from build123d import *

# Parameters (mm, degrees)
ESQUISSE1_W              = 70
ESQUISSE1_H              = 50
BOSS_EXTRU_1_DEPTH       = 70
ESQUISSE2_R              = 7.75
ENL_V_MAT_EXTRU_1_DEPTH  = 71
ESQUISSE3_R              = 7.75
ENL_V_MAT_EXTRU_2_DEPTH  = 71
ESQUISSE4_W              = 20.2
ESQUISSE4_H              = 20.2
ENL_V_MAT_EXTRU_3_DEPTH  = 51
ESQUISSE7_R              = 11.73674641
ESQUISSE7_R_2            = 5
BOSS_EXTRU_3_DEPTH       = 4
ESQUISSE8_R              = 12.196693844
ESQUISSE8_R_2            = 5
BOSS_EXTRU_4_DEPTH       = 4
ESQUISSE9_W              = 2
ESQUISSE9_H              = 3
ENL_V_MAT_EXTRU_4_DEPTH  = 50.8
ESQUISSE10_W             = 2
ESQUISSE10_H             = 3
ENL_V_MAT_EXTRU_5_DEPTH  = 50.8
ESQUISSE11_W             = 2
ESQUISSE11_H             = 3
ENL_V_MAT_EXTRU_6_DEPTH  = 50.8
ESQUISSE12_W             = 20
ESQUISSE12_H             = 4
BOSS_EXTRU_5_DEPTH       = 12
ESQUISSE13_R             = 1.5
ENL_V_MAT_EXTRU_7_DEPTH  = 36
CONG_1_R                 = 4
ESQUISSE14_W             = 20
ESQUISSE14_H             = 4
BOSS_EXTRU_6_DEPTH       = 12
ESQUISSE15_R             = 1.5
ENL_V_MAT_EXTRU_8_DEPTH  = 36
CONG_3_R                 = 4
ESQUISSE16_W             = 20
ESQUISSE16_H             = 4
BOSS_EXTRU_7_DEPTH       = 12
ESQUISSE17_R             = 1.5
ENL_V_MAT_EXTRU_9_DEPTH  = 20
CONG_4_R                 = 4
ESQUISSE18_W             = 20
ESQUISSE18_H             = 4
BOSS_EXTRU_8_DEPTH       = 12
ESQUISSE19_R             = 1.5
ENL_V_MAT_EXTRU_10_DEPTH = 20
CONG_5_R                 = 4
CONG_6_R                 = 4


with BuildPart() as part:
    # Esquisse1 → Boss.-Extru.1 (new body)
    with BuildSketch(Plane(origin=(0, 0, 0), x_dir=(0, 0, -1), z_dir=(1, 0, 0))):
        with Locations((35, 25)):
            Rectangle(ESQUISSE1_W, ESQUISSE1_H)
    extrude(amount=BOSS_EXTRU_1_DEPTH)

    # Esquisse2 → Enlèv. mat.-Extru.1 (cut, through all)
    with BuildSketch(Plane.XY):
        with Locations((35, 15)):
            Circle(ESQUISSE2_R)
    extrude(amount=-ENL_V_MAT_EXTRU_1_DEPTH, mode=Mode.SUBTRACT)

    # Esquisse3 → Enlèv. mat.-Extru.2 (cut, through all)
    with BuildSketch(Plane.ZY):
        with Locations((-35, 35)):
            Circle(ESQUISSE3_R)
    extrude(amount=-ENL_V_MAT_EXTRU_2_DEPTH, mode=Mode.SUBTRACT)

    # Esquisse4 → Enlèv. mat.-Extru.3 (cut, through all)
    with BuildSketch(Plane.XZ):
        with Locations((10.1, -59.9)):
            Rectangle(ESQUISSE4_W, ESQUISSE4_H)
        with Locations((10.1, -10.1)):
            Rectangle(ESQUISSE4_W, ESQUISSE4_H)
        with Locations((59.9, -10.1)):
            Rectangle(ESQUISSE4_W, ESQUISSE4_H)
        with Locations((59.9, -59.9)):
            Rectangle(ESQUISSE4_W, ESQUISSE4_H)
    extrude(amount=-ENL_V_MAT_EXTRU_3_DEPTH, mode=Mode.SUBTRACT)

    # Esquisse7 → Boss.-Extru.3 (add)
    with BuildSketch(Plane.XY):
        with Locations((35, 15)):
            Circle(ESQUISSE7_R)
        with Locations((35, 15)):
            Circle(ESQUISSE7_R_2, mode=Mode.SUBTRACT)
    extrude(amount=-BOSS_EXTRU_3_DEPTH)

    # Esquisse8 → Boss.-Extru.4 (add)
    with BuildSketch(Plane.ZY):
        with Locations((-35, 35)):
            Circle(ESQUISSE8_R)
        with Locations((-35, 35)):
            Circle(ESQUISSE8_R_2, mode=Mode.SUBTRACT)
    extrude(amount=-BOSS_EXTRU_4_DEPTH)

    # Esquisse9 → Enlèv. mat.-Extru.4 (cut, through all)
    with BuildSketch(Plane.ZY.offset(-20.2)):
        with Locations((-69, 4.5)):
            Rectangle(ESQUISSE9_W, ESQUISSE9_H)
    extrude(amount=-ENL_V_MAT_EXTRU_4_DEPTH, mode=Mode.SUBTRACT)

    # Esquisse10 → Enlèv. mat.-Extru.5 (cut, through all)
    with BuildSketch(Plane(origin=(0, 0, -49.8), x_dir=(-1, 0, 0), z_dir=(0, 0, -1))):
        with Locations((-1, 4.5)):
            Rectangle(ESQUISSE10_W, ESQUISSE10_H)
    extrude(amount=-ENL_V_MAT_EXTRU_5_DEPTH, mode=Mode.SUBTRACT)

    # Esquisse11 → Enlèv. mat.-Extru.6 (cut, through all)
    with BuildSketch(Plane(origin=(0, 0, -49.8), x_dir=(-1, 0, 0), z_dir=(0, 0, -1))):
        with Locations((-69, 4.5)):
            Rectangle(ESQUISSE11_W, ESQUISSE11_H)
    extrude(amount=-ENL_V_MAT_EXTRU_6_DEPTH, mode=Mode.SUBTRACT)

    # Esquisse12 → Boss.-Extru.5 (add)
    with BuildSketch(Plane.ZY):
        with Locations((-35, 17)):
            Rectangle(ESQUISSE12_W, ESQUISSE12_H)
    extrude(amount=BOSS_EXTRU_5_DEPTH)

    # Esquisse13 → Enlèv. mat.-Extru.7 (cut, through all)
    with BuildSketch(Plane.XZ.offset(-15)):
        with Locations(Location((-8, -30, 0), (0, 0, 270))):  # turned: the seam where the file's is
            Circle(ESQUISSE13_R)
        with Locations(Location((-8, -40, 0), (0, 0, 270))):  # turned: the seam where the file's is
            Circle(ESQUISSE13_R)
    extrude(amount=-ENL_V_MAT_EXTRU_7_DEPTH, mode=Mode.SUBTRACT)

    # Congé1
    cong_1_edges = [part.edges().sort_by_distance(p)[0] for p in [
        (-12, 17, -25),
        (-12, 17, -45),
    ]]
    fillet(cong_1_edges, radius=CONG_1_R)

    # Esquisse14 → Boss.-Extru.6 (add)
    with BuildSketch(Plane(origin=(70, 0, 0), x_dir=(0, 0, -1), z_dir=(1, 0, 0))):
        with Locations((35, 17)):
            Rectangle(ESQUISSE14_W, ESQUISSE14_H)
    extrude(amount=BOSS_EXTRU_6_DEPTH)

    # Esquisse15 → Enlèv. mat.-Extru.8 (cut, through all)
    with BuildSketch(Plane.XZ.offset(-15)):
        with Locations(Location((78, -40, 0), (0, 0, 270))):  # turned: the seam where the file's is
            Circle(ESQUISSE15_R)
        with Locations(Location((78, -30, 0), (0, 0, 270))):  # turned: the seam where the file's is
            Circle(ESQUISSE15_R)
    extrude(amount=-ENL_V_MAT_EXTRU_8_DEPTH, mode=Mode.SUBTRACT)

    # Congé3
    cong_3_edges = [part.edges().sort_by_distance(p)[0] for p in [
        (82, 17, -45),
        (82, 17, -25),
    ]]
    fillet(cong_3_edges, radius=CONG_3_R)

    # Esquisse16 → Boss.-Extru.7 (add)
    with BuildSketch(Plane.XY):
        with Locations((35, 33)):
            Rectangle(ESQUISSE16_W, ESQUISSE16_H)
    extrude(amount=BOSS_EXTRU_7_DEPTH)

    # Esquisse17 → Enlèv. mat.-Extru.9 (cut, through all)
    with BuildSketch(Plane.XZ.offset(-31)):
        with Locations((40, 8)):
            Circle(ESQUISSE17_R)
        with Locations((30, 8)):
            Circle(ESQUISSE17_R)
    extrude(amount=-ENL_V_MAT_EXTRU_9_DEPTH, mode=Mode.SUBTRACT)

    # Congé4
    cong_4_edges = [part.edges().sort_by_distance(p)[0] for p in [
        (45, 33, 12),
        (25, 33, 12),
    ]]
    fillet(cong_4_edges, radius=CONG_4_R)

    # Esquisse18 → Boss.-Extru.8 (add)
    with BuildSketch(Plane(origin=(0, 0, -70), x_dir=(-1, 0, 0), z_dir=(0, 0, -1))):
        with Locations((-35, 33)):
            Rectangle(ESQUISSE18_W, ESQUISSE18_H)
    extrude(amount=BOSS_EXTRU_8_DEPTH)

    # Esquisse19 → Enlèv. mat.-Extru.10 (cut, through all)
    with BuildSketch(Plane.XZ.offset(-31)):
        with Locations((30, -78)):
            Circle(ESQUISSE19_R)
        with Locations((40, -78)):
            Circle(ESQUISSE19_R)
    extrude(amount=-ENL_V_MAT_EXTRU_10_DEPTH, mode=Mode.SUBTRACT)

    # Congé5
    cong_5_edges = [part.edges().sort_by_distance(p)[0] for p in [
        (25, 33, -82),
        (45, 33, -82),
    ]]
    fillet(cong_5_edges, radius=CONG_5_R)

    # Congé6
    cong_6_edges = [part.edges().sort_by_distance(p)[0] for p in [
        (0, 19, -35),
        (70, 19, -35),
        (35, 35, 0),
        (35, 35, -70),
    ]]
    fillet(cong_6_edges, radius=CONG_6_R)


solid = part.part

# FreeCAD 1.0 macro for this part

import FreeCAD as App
import Part
import Sketcher
from FreeCAD import Vector


def edges_at(feature, points):
    """Names of the edges that pass closest to the given points."""
    edges = feature.Shape.Edges
    near = lambda p: min(range(len(edges)), key=lambda i: edges[i].distToShape(Part.Vertex(*p))[0])
    return sorted({f"Edge{near(p) + 1}" for p in points})


def add_polygon(sketch, points):
    """Adds a closed chain of lines whose ends are joined by coincident constraints."""
    first, n = sketch.GeometryCount, len(points)
    for a, b in zip(points, points[1:] + points[:1]):
        sketch.addGeometry(Part.LineSegment(App.Vector(*a, 0), App.Vector(*b, 0)), False)
    for i in range(n):
        sketch.addConstraint(Sketcher.Constraint("Coincident", first + i, 2, first + (i + 1) % n, 1))

doc = App.newDocument("Part")
body = doc.addObject("PartDesign::Body", "Body")

# Sketch on YZ plane
sketch1 = body.newObject("Sketcher::SketchObject", "Sketch")
sketch1.AttachmentSupport = (doc.getObject("YZ_Plane"), [""])
sketch1.MapMode = "FlatFace"
add_polygon(sketch1, [(50, 0), (0, 0), (0, -70), (50, -70)])  # lines 0-3
sketch1.addConstraint([
    Sketcher.Constraint("Horizontal", 0),
    Sketcher.Constraint("Vertical", 1),
    Sketcher.Constraint("Horizontal", 2),
    Sketcher.Constraint("Vertical", 3),
    Sketcher.Constraint("Coincident", 0, 2, -1, 1),
    Sketcher.Constraint("DistanceX", 0, 2, 0, 1, 50.0),
    Sketcher.Constraint("DistanceY", 1, 2, 1, 1, 70.0),
])
pad1 = body.newObject("PartDesign::Pad", "Pad")
pad1.Profile = sketch1
pad1.Length = 70

# Sketch on XY plane
sketch2 = body.newObject("Sketcher::SketchObject", "Sketch001")
sketch2.AttachmentSupport = (doc.getObject("XY_Plane"), [""])
sketch2.MapMode = "FlatFace"
sketch2.addGeometry(Part.Circle(Vector(35, 15, 0), Vector(0, 0, 1), 8), False)
sketch2.addConstraint([
    Sketcher.Constraint("Diameter", 0, 15.5),
    Sketcher.Constraint("DistanceX", -1, 1, 0, 3, 35.0),
    Sketcher.Constraint("DistanceY", -1, 1, 0, 3, 15.0),
])
pocket1 = body.newObject("PartDesign::Pocket", "Pocket")
pocket1.Profile = sketch2
pocket1.Type = "ThroughAll"

# Sketch on YZ plane
sketch3 = body.newObject("Sketcher::SketchObject", "Sketch002")
sketch3.AttachmentSupport = (doc.getObject("YZ_Plane"), [""])
sketch3.MapMode = "FlatFace"
sketch3.addGeometry(Part.Circle(Vector(35, -35, 0), Vector(0, 0, 1), 8), False)
sketch3.addConstraint([
    Sketcher.Constraint("Diameter", 0, 15.5),
    Sketcher.Constraint("DistanceX", -1, 1, 0, 3, 35.0),
    Sketcher.Constraint("DistanceY", 0, 3, -1, 1, 35.0),
])
pocket2 = body.newObject("PartDesign::Pocket", "Pocket001")
pocket2.Profile = sketch3
pocket2.Type = "ThroughAll"
pocket2.Reversed = True

# Sketch on XZ plane
sketch4 = body.newObject("Sketcher::SketchObject", "Sketch003")
sketch4.AttachmentSupport = (doc.getObject("XZ_Plane"), [""])
sketch4.MapMode = "FlatFace"
add_polygon(sketch4, [(0, -50), (0, -70), (20, -70), (20, -50)])  # lines 0-3
add_polygon(sketch4, [(0, 0), (0, -20), (20, -20), (20, 0)])  # lines 4-7
add_polygon(sketch4, [(50, 0), (50, -20), (70, -20), (70, 0)])  # lines 8-11
add_polygon(sketch4, [(50, -50), (50, -70), (70, -70), (70, -50)])  # lines 12-15
sketch4.addConstraint([
    Sketcher.Constraint("Vertical", 0),
    Sketcher.Constraint("Horizontal", 1),
    Sketcher.Constraint("Vertical", 2),
    Sketcher.Constraint("Horizontal", 3),
    Sketcher.Constraint("Vertical", 4),
    Sketcher.Constraint("Horizontal", 5),
    Sketcher.Constraint("Vertical", 6),
    Sketcher.Constraint("Horizontal", 7),
    Sketcher.Constraint("Vertical", 8),
    Sketcher.Constraint("Horizontal", 9),
    Sketcher.Constraint("Vertical", 10),
    Sketcher.Constraint("Horizontal", 11),
    Sketcher.Constraint("Vertical", 12),
    Sketcher.Constraint("Horizontal", 13),
    Sketcher.Constraint("Vertical", 14),
    Sketcher.Constraint("Horizontal", 15),
    Sketcher.Constraint("Coincident", 7, 2, -1, 1),
    Sketcher.Constraint("PointOnObject", 0, 2, -2),
    Sketcher.Constraint("PointOnObject", 10, 2, -1),
    Sketcher.Constraint("Horizontal", 5, 2, 8, 2),
    Sketcher.Constraint("Horizontal", 1, 2, 12, 2),
    Sketcher.Constraint("Horizontal", 3, 2, 14, 2),
    Sketcher.Constraint("Vertical", 2, 2, 5, 2),
    Sketcher.Constraint("Vertical", 11, 2, 12, 2),
    Sketcher.Constraint("Vertical", 10, 2, 13, 2),
    Sketcher.Constraint("Equal", 7, 9),
    Sketcher.Constraint("Equal", 15, 0),
    Sketcher.Constraint("Equal", 2, 4),
    Sketcher.Constraint("DistanceX", 1, 1, 1, 2, 20.2),
    Sketcher.Constraint("DistanceY", 0, 2, -1, 1, 70.0),
    Sketcher.Constraint("DistanceX", -1, 1, 9, 2, 70.0),
])
pocket3 = body.newObject("PartDesign::Pocket", "Pocket002")
pocket3.Profile = sketch4
pocket3.Type = "ThroughAll"

# Sketch on XY plane
sketch5 = body.newObject("Sketcher::SketchObject", "Sketch004")
sketch5.AttachmentSupport = (doc.getObject("XY_Plane"), [""])
sketch5.MapMode = "FlatFace"
sketch5.addGeometry([
    Part.Circle(Vector(35, 15, 0), Vector(0, 0, 1), 12),
    Part.Circle(Vector(35, 15, 0), Vector(0, 0, 1), 5),
], False)
sketch5.addConstraint([
    Sketcher.Constraint("Coincident", 1, 3, 0, 3),
    Sketcher.Constraint("Diameter", 1, 10.0),
    Sketcher.Constraint("DistanceX", -1, 1, 0, 3, 35.0),
    Sketcher.Constraint("DistanceY", -1, 1, 0, 3, 15.0),
    Sketcher.Constraint("Diameter", 0, 23.473493),
])
pad2 = body.newObject("PartDesign::Pad", "Pad001")
pad2.Profile = sketch5
pad2.Length = 4
pad2.Reversed = True

# Sketch on YZ plane
sketch6 = body.newObject("Sketcher::SketchObject", "Sketch005")
sketch6.AttachmentSupport = (doc.getObject("YZ_Plane"), [""])
sketch6.MapMode = "FlatFace"
sketch6.addGeometry([
    Part.Circle(Vector(35, -35, 0), Vector(0, 0, 1), 12),
    Part.Circle(Vector(35, -35, 0), Vector(0, 0, 1), 5),
], False)
sketch6.addConstraint([
    Sketcher.Constraint("Coincident", 1, 3, 0, 3),
    Sketcher.Constraint("Diameter", 1, 10.0),
    Sketcher.Constraint("DistanceX", -1, 1, 0, 3, 35.0),
    Sketcher.Constraint("DistanceY", 0, 3, -1, 1, 35.0),
    Sketcher.Constraint("Diameter", 0, 24.393388),
])
pad3 = body.newObject("PartDesign::Pad", "Pad002")
pad3.Profile = sketch6
pad3.Length = 4

# Sketch on YZ plane
sketch7 = body.newObject("Sketcher::SketchObject", "Sketch006")
sketch7.AttachmentSupport = (doc.getObject("YZ_Plane"), [""])
sketch7.MapMode = "FlatFace"
sketch7.AttachmentOffset = App.Placement(Vector(0, 0, 20.2), App.Rotation())
add_polygon(sketch7, [(6, -70), (3, -70), (3, -68), (6, -68)])  # lines 0-3
sketch7.addConstraint([
    Sketcher.Constraint("Horizontal", 0),
    Sketcher.Constraint("Vertical", 1),
    Sketcher.Constraint("Horizontal", 2),
    Sketcher.Constraint("Vertical", 3),
    Sketcher.Constraint("DistanceX", 0, 2, 0, 1, 3.0),
    Sketcher.Constraint("DistanceY", 1, 1, 1, 2, 2.0),
    Sketcher.Constraint("DistanceX", -1, 1, 0, 2, 3.0),
    Sketcher.Constraint("DistanceY", 0, 2, -1, 1, 70.0),
])
pocket4 = body.newObject("PartDesign::Pocket", "Pocket003")
pocket4.Profile = sketch7
pocket4.Type = "ThroughAll"
pocket4.Reversed = True

# Sketch on XY plane
sketch8 = body.newObject("Sketcher::SketchObject", "Sketch007")
sketch8.AttachmentSupport = (doc.getObject("XY_Plane"), [""])
sketch8.MapMode = "FlatFace"
sketch8.AttachmentOffset = App.Placement(Vector(0, 0, -49.8), App.Rotation())
add_polygon(sketch8, [(2, 6), (2, 3), (0, 3), (0, 6)])  # lines 0-3
sketch8.addConstraint([
    Sketcher.Constraint("Vertical", 0),
    Sketcher.Constraint("Horizontal", 1),
    Sketcher.Constraint("Vertical", 2),
    Sketcher.Constraint("Horizontal", 3),
    Sketcher.Constraint("PointOnObject", 1, 2, -2),
    Sketcher.Constraint("DistanceX", 1, 2, 1, 1, 2.0),
    Sketcher.Constraint("DistanceY", 0, 2, 0, 1, 3.0),
    Sketcher.Constraint("DistanceY", -1, 1, 0, 2, 3.0),
])
pocket5 = body.newObject("PartDesign::Pocket", "Pocket004")
pocket5.Profile = sketch8
pocket5.Type = "ThroughAll"
pocket5.Reversed = True

# Sketch on XY plane
sketch9 = body.newObject("Sketcher::SketchObject", "Sketch008")
sketch9.AttachmentSupport = (doc.getObject("XY_Plane"), [""])
sketch9.MapMode = "FlatFace"
sketch9.AttachmentOffset = App.Placement(Vector(0, 0, -49.8), App.Rotation())
add_polygon(sketch9, [(70, 6), (70, 3), (68, 3), (68, 6)])  # lines 0-3
sketch9.addConstraint([
    Sketcher.Constraint("Vertical", 0),
    Sketcher.Constraint("Horizontal", 1),
    Sketcher.Constraint("Vertical", 2),
    Sketcher.Constraint("Horizontal", 3),
    Sketcher.Constraint("DistanceX", 1, 2, 1, 1, 2.0),
    Sketcher.Constraint("DistanceY", 0, 2, 0, 1, 3.0),
    Sketcher.Constraint("DistanceX", -1, 1, 0, 2, 70.0),
    Sketcher.Constraint("DistanceY", -1, 1, 0, 2, 3.0),
])
pocket6 = body.newObject("PartDesign::Pocket", "Pocket005")
pocket6.Profile = sketch9
pocket6.Type = "ThroughAll"
pocket6.Reversed = True

# Sketch on YZ plane
sketch10 = body.newObject("Sketcher::SketchObject", "Sketch009")
sketch10.AttachmentSupport = (doc.getObject("YZ_Plane"), [""])
sketch10.MapMode = "FlatFace"
add_polygon(sketch10, [(19, -45), (15, -45), (15, -25), (19, -25)])  # lines 0-3
sketch10.addConstraint([
    Sketcher.Constraint("Horizontal", 0),
    Sketcher.Constraint("Vertical", 1),
    Sketcher.Constraint("Horizontal", 2),
    Sketcher.Constraint("Vertical", 3),
    Sketcher.Constraint("DistanceX", 0, 2, 0, 1, 4.0),
    Sketcher.Constraint("DistanceY", 1, 1, 1, 2, 20.0),
    Sketcher.Constraint("DistanceX", -1, 1, 0, 2, 15.0),
    Sketcher.Constraint("DistanceY", 0, 2, -1, 1, 45.0),
])
pad4 = body.newObject("PartDesign::Pad", "Pad003")
pad4.Profile = sketch10
pad4.Length = 12
pad4.Reversed = True

# Sketch on XZ plane
sketch11 = body.newObject("Sketcher::SketchObject", "Sketch010")
sketch11.AttachmentSupport = (doc.getObject("XZ_Plane"), [""])
sketch11.MapMode = "FlatFace"
sketch11.AttachmentOffset = App.Placement(Vector(0, 0, -15), App.Rotation())
sketch11.addGeometry([
    Part.Circle(Vector(-8, -30, 0), Vector(0, 0, 1), 1.5),
    Part.Circle(Vector(-8, -40, 0), Vector(0, 0, 1), 1.5),
], False)
sketch11.addConstraint([
    Sketcher.Constraint("Equal", 0, 1),
    Sketcher.Constraint("Vertical", 0, 3, 1, 3),
    Sketcher.Constraint("Diameter", 0, 3.0),
    Sketcher.Constraint("DistanceX", 0, 3, -1, 1, 8.0),
    Sketcher.Constraint("DistanceY", 0, 3, -1, 1, 30.0),
    Sketcher.Constraint("DistanceY", 1, 3, -1, 1, 40.0),
])
pocket7 = body.newObject("PartDesign::Pocket", "Pocket006")
pocket7.Profile = sketch11
pocket7.Type = "ThroughAll"
doc.recompute()

fillet = body.newObject("PartDesign::Fillet", "Fillet")
fillet.Base = (pocket7, edges_at(pocket7, [(-12, 17, -25), (-12, 17, -45)]))
fillet.Radius = 4

# Sketch on YZ plane
sketch12 = body.newObject("Sketcher::SketchObject", "Sketch011")
sketch12.AttachmentSupport = (doc.getObject("YZ_Plane"), [""])
sketch12.MapMode = "FlatFace"
sketch12.AttachmentOffset = App.Placement(Vector(0, 0, 70), App.Rotation())
add_polygon(sketch12, [(19, -25), (15, -25), (15, -45), (19, -45)])  # lines 0-3
sketch12.addConstraint([
    Sketcher.Constraint("Horizontal", 0),
    Sketcher.Constraint("Vertical", 1),
    Sketcher.Constraint("Horizontal", 2),
    Sketcher.Constraint("Vertical", 3),
    Sketcher.Constraint("DistanceX", 0, 2, 0, 1, 4.0),
    Sketcher.Constraint("DistanceY", 1, 2, 1, 1, 20.0),
    Sketcher.Constraint("DistanceX", -1, 1, 0, 2, 15.0),
    Sketcher.Constraint("DistanceY", 0, 2, -1, 1, 25.0),
])
pad5 = body.newObject("PartDesign::Pad", "Pad004")
pad5.Profile = sketch12
pad5.Length = 12

# Sketch on XZ plane
sketch13 = body.newObject("Sketcher::SketchObject", "Sketch012")
sketch13.AttachmentSupport = (doc.getObject("XZ_Plane"), [""])
sketch13.MapMode = "FlatFace"
sketch13.AttachmentOffset = App.Placement(Vector(0, 0, -15), App.Rotation())
sketch13.addGeometry([
    Part.Circle(Vector(78, -40, 0), Vector(0, 0, 1), 1.5),
    Part.Circle(Vector(78, -30, 0), Vector(0, 0, 1), 1.5),
], False)
sketch13.addConstraint([
    Sketcher.Constraint("Equal", 0, 1),
    Sketcher.Constraint("Vertical", 0, 3, 1, 3),
    Sketcher.Constraint("Diameter", 0, 3.0),
    Sketcher.Constraint("DistanceX", -1, 1, 0, 3, 78.0),
    Sketcher.Constraint("DistanceY", 0, 3, -1, 1, 40.0),
    Sketcher.Constraint("DistanceY", 1, 3, -1, 1, 30.0),
])
pocket8 = body.newObject("PartDesign::Pocket", "Pocket007")
pocket8.Profile = sketch13
pocket8.Type = "ThroughAll"
doc.recompute()

fillet2 = body.newObject("PartDesign::Fillet", "Fillet001")
fillet2.Base = (pocket8, edges_at(pocket8, [(82, 17, -45), (82, 17, -25)]))
fillet2.Radius = 4

# Sketch on XY plane
sketch14 = body.newObject("Sketcher::SketchObject", "Sketch013")
sketch14.AttachmentSupport = (doc.getObject("XY_Plane"), [""])
sketch14.MapMode = "FlatFace"
add_polygon(sketch14, [(25, 35), (25, 31), (45, 31), (45, 35)])  # lines 0-3
sketch14.addConstraint([
    Sketcher.Constraint("Vertical", 0),
    Sketcher.Constraint("Horizontal", 1),
    Sketcher.Constraint("Vertical", 2),
    Sketcher.Constraint("Horizontal", 3),
    Sketcher.Constraint("DistanceX", 1, 1, 1, 2, 20.0),
    Sketcher.Constraint("DistanceY", 0, 2, 0, 1, 4.0),
    Sketcher.Constraint("DistanceX", -1, 1, 0, 2, 25.0),
    Sketcher.Constraint("DistanceY", -1, 1, 0, 2, 31.0),
])
pad6 = body.newObject("PartDesign::Pad", "Pad005")
pad6.Profile = sketch14
pad6.Length = 12

# Sketch on XZ plane
sketch15 = body.newObject("Sketcher::SketchObject", "Sketch014")
sketch15.AttachmentSupport = (doc.getObject("XZ_Plane"), [""])
sketch15.MapMode = "FlatFace"
sketch15.AttachmentOffset = App.Placement(Vector(0, 0, -31), App.Rotation())
sketch15.addGeometry([
    Part.Circle(Vector(40, 8, 0), Vector(0, 0, 1), 1.5),
    Part.Circle(Vector(30, 8, 0), Vector(0, 0, 1), 1.5),
], False)
sketch15.addConstraint([
    Sketcher.Constraint("Equal", 0, 1),
    Sketcher.Constraint("Horizontal", 0, 3, 1, 3),
    Sketcher.Constraint("Diameter", 0, 3.0),
    Sketcher.Constraint("DistanceX", -1, 1, 0, 3, 40.0),
    Sketcher.Constraint("DistanceY", -1, 1, 0, 3, 8.0),
    Sketcher.Constraint("DistanceX", -1, 1, 1, 3, 30.0),
])
pocket9 = body.newObject("PartDesign::Pocket", "Pocket008")
pocket9.Profile = sketch15
pocket9.Type = "ThroughAll"
doc.recompute()

fillet3 = body.newObject("PartDesign::Fillet", "Fillet002")
fillet3.Base = (pocket9, edges_at(pocket9, [(45, 33, 12), (25, 33, 12)]))
fillet3.Radius = 4

# Sketch on XY plane
sketch16 = body.newObject("Sketcher::SketchObject", "Sketch015")
sketch16.AttachmentSupport = (doc.getObject("XY_Plane"), [""])
sketch16.MapMode = "FlatFace"
sketch16.AttachmentOffset = App.Placement(Vector(0, 0, -70), App.Rotation())
add_polygon(sketch16, [(45, 35), (45, 31), (25, 31), (25, 35)])  # lines 0-3
sketch16.addConstraint([
    Sketcher.Constraint("Vertical", 0),
    Sketcher.Constraint("Horizontal", 1),
    Sketcher.Constraint("Vertical", 2),
    Sketcher.Constraint("Horizontal", 3),
    Sketcher.Constraint("DistanceX", 1, 2, 1, 1, 20.0),
    Sketcher.Constraint("DistanceY", 0, 2, 0, 1, 4.0),
    Sketcher.Constraint("DistanceX", -1, 1, 0, 2, 45.0),
    Sketcher.Constraint("DistanceY", -1, 1, 0, 2, 31.0),
])
pad7 = body.newObject("PartDesign::Pad", "Pad006")
pad7.Profile = sketch16
pad7.Length = 12
pad7.Reversed = True

# Sketch on XZ plane
sketch17 = body.newObject("Sketcher::SketchObject", "Sketch016")
sketch17.AttachmentSupport = (doc.getObject("XZ_Plane"), [""])
sketch17.MapMode = "FlatFace"
sketch17.AttachmentOffset = App.Placement(Vector(0, 0, -31), App.Rotation())
sketch17.addGeometry([
    Part.Circle(Vector(30, -78, 0), Vector(0, 0, 1), 1.5),
    Part.Circle(Vector(40, -78, 0), Vector(0, 0, 1), 1.5),
], False)
sketch17.addConstraint([
    Sketcher.Constraint("Equal", 0, 1),
    Sketcher.Constraint("Horizontal", 0, 3, 1, 3),
    Sketcher.Constraint("Diameter", 0, 3.0),
    Sketcher.Constraint("DistanceX", -1, 1, 0, 3, 30.0),
    Sketcher.Constraint("DistanceY", 0, 3, -1, 1, 78.0),
    Sketcher.Constraint("DistanceX", -1, 1, 1, 3, 40.0),
])
pocket10 = body.newObject("PartDesign::Pocket", "Pocket009")
pocket10.Profile = sketch17
pocket10.Type = "ThroughAll"
doc.recompute()

fillet4 = body.newObject("PartDesign::Fillet", "Fillet003")
fillet4.Base = (pocket10, edges_at(pocket10, [(25, 33, -82), (45, 33, -82)]))
fillet4.Radius = 4
doc.recompute()

fillet5 = body.newObject("PartDesign::Fillet", "Fillet004")
fillet5.Base = (fillet4, edges_at(fillet4, [
    (0, 19, -35),
    (70, 19, -35),
    (35, 35, 0),
    (35, 35, -70),
]))
fillet5.Radius = 4

doc.recompute()
